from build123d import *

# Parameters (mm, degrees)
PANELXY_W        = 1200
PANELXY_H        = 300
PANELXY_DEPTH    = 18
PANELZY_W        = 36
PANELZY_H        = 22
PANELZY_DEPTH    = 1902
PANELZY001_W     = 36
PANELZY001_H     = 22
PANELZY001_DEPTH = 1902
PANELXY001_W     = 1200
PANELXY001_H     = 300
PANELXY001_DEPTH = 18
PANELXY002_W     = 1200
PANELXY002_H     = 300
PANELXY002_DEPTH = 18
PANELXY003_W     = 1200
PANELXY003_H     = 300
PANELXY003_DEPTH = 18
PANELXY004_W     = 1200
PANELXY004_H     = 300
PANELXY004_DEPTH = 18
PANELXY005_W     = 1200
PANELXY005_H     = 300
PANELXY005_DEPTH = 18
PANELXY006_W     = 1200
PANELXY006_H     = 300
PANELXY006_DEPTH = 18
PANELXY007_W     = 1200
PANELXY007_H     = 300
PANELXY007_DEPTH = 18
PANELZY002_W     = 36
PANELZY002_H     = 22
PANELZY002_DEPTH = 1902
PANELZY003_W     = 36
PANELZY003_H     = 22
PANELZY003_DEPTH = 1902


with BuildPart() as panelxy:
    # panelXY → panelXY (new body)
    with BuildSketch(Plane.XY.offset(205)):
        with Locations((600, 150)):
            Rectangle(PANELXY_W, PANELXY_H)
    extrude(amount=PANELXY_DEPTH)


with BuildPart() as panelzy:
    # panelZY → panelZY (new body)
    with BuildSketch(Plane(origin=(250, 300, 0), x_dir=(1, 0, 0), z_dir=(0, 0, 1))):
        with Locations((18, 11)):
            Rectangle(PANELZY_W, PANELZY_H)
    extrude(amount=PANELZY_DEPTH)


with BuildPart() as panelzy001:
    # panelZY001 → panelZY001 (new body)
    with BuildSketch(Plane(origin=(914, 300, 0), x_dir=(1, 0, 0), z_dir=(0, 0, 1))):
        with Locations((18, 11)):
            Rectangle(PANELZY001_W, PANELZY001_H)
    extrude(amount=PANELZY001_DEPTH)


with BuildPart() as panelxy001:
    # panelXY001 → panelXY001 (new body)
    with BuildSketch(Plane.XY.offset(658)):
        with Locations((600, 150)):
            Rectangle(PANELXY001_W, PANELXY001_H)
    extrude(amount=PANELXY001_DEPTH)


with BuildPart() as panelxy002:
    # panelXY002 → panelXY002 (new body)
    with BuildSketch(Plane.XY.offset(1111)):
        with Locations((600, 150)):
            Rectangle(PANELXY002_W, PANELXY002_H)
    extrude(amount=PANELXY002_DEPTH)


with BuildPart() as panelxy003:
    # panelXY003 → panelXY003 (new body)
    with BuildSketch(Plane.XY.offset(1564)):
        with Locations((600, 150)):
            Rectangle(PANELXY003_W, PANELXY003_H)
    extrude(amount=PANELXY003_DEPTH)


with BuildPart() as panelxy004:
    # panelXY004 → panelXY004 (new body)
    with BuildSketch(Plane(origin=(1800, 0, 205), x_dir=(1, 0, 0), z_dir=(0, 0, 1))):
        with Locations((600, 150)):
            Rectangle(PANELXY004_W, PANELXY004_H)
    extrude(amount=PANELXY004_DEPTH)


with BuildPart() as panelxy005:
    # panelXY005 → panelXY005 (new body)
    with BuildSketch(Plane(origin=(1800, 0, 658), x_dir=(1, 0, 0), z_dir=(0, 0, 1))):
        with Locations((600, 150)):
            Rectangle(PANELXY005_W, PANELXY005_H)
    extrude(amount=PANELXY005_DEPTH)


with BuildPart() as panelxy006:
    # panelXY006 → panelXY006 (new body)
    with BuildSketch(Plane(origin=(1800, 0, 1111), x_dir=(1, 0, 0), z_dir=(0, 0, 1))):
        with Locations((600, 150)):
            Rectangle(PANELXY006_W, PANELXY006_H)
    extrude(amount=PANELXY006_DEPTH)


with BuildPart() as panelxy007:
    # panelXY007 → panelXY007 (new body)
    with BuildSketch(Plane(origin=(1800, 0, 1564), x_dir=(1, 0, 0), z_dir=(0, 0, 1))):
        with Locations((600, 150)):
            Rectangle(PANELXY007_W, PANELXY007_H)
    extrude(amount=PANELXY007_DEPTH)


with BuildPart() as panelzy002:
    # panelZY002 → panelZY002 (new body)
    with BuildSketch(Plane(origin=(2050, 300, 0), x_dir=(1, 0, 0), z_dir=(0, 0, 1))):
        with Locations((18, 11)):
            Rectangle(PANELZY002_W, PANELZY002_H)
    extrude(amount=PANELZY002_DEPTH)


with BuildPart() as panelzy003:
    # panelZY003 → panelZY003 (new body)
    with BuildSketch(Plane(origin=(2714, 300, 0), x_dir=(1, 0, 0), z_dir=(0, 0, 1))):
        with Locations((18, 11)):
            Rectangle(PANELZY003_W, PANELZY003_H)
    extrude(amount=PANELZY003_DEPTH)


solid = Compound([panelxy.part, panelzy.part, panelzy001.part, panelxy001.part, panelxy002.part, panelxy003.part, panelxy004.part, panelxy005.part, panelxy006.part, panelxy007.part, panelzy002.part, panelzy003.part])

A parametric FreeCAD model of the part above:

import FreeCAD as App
import Part
import Sketcher

V = App.Vector
Q = App.Units.Quantity


def add_polygon(sketch, points):
    """Adds a closed chain of lines whose ends are joined by coincident constraints."""
    first, n = sketch.GeometryCount, len(points)
    for a, b in zip(points, points[1:] + points[:1]):
        sketch.addGeometry(Part.LineSegment(App.Vector(*a, 0), App.Vector(*b, 0)), False)
    for i in range(n):
        sketch.addConstraint(Sketcher.Constraint("Coincident", first + i, 2, first + (i + 1) % n, 1))

doc = App.newDocument("Part")
params = doc.addObject("Spreadsheet::Sheet", "Params")
for row, (alias, value) in enumerate([
    ("sketch1_width", "1200 mm"),
    ("sketch1_height", "300 mm"),
    ("pad1_length", "18 mm"),
    ("sketch2_width", "36 mm"),
    ("sketch2_height", "22 mm"),
    ("pad2_length", "1902 mm"),
    ("sketch3_width", "36 mm"),
    ("sketch3_height", "22 mm"),
    ("pad3_length", "1902 mm"),
    ("sketch4_width", "1200 mm"),
    ("sketch4_height", "300 mm"),
    ("pad4_length", "18 mm"),
    ("sketch5_width", "1200 mm"),
    ("sketch5_height", "300 mm"),
    ("pad5_length", "18 mm"),
    ("sketch6_width", "1200 mm"),
    ("sketch6_height", "300 mm"),
    ("pad6_length", "18 mm"),
    ("sketch7_width", "1200 mm"),
    ("sketch7_height", "300 mm"),
    ("pad7_length", "18 mm"),
    ("sketch8_width", "1200 mm"),
    ("sketch8_height", "300 mm"),
    ("pad8_length", "18 mm"),
    ("sketch9_width", "1200 mm"),
    ("sketch9_height", "300 mm"),
    ("pad9_length", "18 mm"),
    ("sketch10_width", "1200 mm"),
    ("sketch10_height", "300 mm"),
    ("pad10_length", "18 mm"),
    ("sketch11_width", "36 mm"),
    ("sketch11_height", "22 mm"),
    ("pad11_length", "1902 mm"),
    ("sketch12_width", "36 mm"),
    ("sketch12_height", "22 mm"),
    ("pad12_length", "1902 mm"),
], start=1):
    params.set(f"A{row}", alias)
    params.set(f"B{row}", "=" + value)
    params.setAlias(f"B{row}", alias)

body = doc.addObject("PartDesign::Body", "Body")

sketch1 = body.newObject("Sketcher::SketchObject", "Sketch")
sketch1.AttachmentSupport = (doc.getObject("XY_Plane"), [""])
sketch1.MapMode = "FlatFace"
sketch1.AttachmentOffset = App.Placement(V(0, 0, 205), App.Rotation())
add_polygon(sketch1, [(0, 300), (0, 0), (1200, 0), (1200, 300)])
sketch1.addConstraint([
    Sketcher.Constraint("Vertical", 0),
    Sketcher.Constraint("Horizontal", 1),
    Sketcher.Constraint("Vertical", 2),
    Sketcher.Constraint("Horizontal", 3),
    Sketcher.Constraint("Coincident", 0, 2, -1, 1),
    Sketcher.Constraint("DistanceX", 1, 1, 1, 2, Q("1200 mm")),
    Sketcher.Constraint("DistanceY", 0, 2, 0, 1, Q("300 mm")),
])
sketch1.setExpression("Constraints[9]", "Params.sketch1_width")
sketch1.setExpression("Constraints[10]", "Params.sketch1_height")
pad1 = body.newObject("PartDesign::Pad", "Pad")
pad1.Profile = sketch1
pad1.setExpression("Length", "Params.pad1_length")
body2 = doc.addObject("PartDesign::Body", "Body001")

sketch2 = body2.newObject("Sketcher::SketchObject", "Sketch001")
sketch2.AttachmentSupport = (doc.getObject("XY_Plane001"), [""])
sketch2.MapMode = "FlatFace"
add_polygon(sketch2, [(250, 322), (250, 300), (286, 300), (286, 322)])
sketch2.addConstraint([
    Sketcher.Constraint("Vertical", 0),
    Sketcher.Constraint("Horizontal", 1),
    Sketcher.Constraint("Vertical", 2),
    Sketcher.Constraint("Horizontal", 3),
    Sketcher.Constraint("DistanceX", 1, 1, 1, 2, Q("36 mm")),
    Sketcher.Constraint("DistanceY", 0, 2, 0, 1, Q("22 mm")),
    Sketcher.Constraint("DistanceX", -1, 1, 0, 2, Q("250 mm")),
    Sketcher.Constraint("DistanceY", -1, 1, 0, 2, Q("300 mm")),
])
sketch2.setExpression("Constraints[8]", "Params.sketch2_width")
sketch2.setExpression("Constraints[9]", "Params.sketch2_height")
pad2 = body2.newObject("PartDesign::Pad", "Pad001")
pad2.Profile = sketch2
pad2.setExpression("Length", "Params.pad2_length")
body3 = doc.addObject("PartDesign::Body", "Body002")

sketch3 = body3.newObject("Sketcher::SketchObject", "Sketch002")
sketch3.AttachmentSupport = (doc.getObject("XY_Plane002"), [""])
sketch3.MapMode = "FlatFace"
add_polygon(sketch3, [(914, 322), (914, 300), (950, 300), (950, 322)])
sketch3.addConstraint([
    Sketcher.Constraint("Vertical", 0),
    Sketcher.Constraint("Horizontal", 1),
    Sketcher.Constraint("Vertical", 2),
    Sketcher.Constraint("Horizontal", 3),
    Sketcher.Constraint("DistanceX", 1, 1, 1, 2, Q("36 mm")),
    Sketcher.Constraint("DistanceY", 0, 2, 0, 1, Q("22 mm")),
    Sketcher.Constraint("DistanceX", -1, 1, 0, 2, Q("914 mm")),
    Sketcher.Constraint("DistanceY", -1, 1, 0, 2, Q("300 mm")),
])
sketch3.setExpression("Constraints[8]", "Params.sketch3_width")
sketch3.setExpression("Constraints[9]", "Params.sketch3_height")
pad3 = body3.newObject("PartDesign::Pad", "Pad002")
pad3.Profile = sketch3
pad3.setExpression("Length", "Params.pad3_length")
body4 = doc.addObject("PartDesign::Body", "Body003")

sketch4 = body4.newObject("Sketcher::SketchObject", "Sketch003")
sketch4.AttachmentSupport = (doc.getObject("XY_Plane003"), [""])
sketch4.MapMode = "FlatFace"
sketch4.AttachmentOffset = App.Placement(V(0, 0, 658), App.Rotation())
add_polygon(sketch4, [(0, 300), (0, 0), (1200, 0), (1200, 300)])
sketch4.addConstraint([
    Sketcher.Constraint("Vertical", 0),
    Sketcher.Constraint("Horizontal", 1),
    Sketcher.Constraint("Vertical", 2),
    Sketcher.Constraint("Horizontal", 3),
    Sketcher.Constraint("Coincident", 0, 2, -1, 1),
    Sketcher.Constraint("DistanceX", 1, 1, 1, 2, Q("1200 mm")),
    Sketcher.Constraint("DistanceY", 0, 2, 0, 1, Q("300 mm")),
])
sketch4.setExpression("Constraints[9]", "Params.sketch4_width")
sketch4.setExpression("Constraints[10]", "Params.sketch4_height")
pad4 = body4.newObject("PartDesign::Pad", "Pad003")
pad4.Profile = sketch4
pad4.setExpression("Length", "Params.pad4_length")
body5 = doc.addObject("PartDesign::Body", "Body004")

sketch5 = body5.newObject("Sketcher::SketchObject", "Sketch004")
sketch5.AttachmentSupport = (doc.getObject("XY_Plane004"), [""])
sketch5.MapMode = "FlatFace"
sketch5.AttachmentOffset = App.Placement(V(0, 0, 1111), App.Rotation())
add_polygon(sketch5, [(0, 300), (0, 0), (1200, 0), (1200, 300)])
sketch5.addConstraint([
    Sketcher.Constraint("Vertical", 0),
    Sketcher.Constraint("Horizontal", 1),
    Sketcher.Constraint("Vertical", 2),
    Sketcher.Constraint("Horizontal", 3),
    Sketcher.Constraint("Coincident", 0, 2, -1, 1),
    Sketcher.Constraint("DistanceX", 1, 1, 1, 2, Q("1200 mm")),
    Sketcher.Constraint("DistanceY", 0, 2, 0, 1, Q("300 mm")),
])
sketch5.setExpression("Constraints[9]", "Params.sketch5_width")
sketch5.setExpression("Constraints[10]", "Params.sketch5_height")
pad5 = body5.newObject("PartDesign::Pad", "Pad004")
pad5.Profile = sketch5
pad5.setExpression("Length", "Params.pad5_length")
body6 = doc.addObject("PartDesign::Body", "Body005")

sketch6 = body6.newObject("Sketcher::SketchObject", "Sketch005")
sketch6.AttachmentSupport = (doc.getObject("XY_Plane005"), [""])
sketch6.MapMode = "FlatFace"
sketch6.AttachmentOffset = App.Placement(V(0, 0, 1564), App.Rotation())
add_polygon(sketch6, [(0, 300), (0, 0), (1200, 0), (1200, 300)])
sketch6.addConstraint([
    Sketcher.Constraint("Vertical", 0),
    Sketcher.Constraint("Horizontal", 1),
    Sketcher.Constraint("Vertical", 2),
    Sketcher.Constraint("Horizontal", 3),
    Sketcher.Constraint("Coincident", 0, 2, -1, 1),
    Sketcher.Constraint("DistanceX", 1, 1, 1, 2, Q("1200 mm")),
    Sketcher.Constraint("DistanceY", 0, 2, 0, 1, Q("300 mm")),
])
sketch6.setExpression("Constraints[9]", "Params.sketch6_width")
sketch6.setExpression("Constraints[10]", "Params.sketch6_height")
pad6 = body6.newObject("PartDesign::Pad", "Pad005")
pad6.Profile = sketch6
pad6.setExpression("Length", "Params.pad6_length")
body7 = doc.addObject("PartDesign::Body", "Body006")

sketch7 = body7.newObject("Sketcher::SketchObject", "Sketch006")
sketch7.AttachmentSupport = (doc.getObject("XY_Plane006"), [""])
sketch7.MapMode = "FlatFace"
sketch7.AttachmentOffset = App.Placement(V(0, 0, 205), App.Rotation())
add_polygon(sketch7, [(1800, 300), (1800, 0), (3000, 0), (3000, 300)])
sketch7.addConstraint([
    Sketcher.Constraint("Vertical", 0),
    Sketcher.Constraint("Horizontal", 1),
    Sketcher.Constraint("Vertical", 2),
    Sketcher.Constraint("Horizontal", 3),
    Sketcher.Constraint("PointOnObject", 0, 2, -1),
    Sketcher.Constraint("DistanceX", 1, 1, 1, 2, Q("1200 mm")),
    Sketcher.Constraint("DistanceY", 0, 2, 0, 1, Q("300 mm")),
    Sketcher.Constraint("DistanceX", -1, 1, 0, 2, Q("1800 mm")),
])
sketch7.setExpression("Constraints[9]", "Params.sketch7_width")
sketch7.setExpression("Constraints[10]", "Params.sketch7_height")
pad7 = body7.newObject("PartDesign::Pad", "Pad006")
pad7.Profile = sketch7
pad7.setExpression("Length", "Params.pad7_length")
body8 = doc.addObject("PartDesign::Body", "Body007")

sketch8 = body8.newObject("Sketcher::SketchObject", "Sketch007")
sketch8.AttachmentSupport = (doc.getObject("XY_Plane007"), [""])
sketch8.MapMode = "FlatFace"
sketch8.AttachmentOffset = App.Placement(V(0, 0, 658), App.Rotation())
add_polygon(sketch8, [(1800, 300), (1800, 0), (3000, 0), (3000, 300)])
sketch8.addConstraint([
    Sketcher.Constraint("Vertical", 0),
    Sketcher.Constraint("Horizontal", 1),
    Sketcher.Constraint("Vertical", 2),
    Sketcher.Constraint("Horizontal", 3),
    Sketcher.Constraint("PointOnObject", 0, 2, -1),
    Sketcher.Constraint("DistanceX", 1, 1, 1, 2, Q("1200 mm")),
    Sketcher.Constraint("DistanceY", 0, 2, 0, 1, Q("300 mm")),
    Sketcher.Constraint("DistanceX", -1, 1, 0, 2, Q("1800 mm")),
])
sketch8.setExpression("Constraints[9]", "Params.sketch8_width")
sketch8.setExpression("Constraints[10]", "Params.sketch8_height")
pad8 = body8.newObject("PartDesign::Pad", "Pad007")
pad8.Profile = sketch8
pad8.setExpression("Length", "Params.pad8_length")
body9 = doc.addObject("PartDesign::Body", "Body008")

sketch9 = body9.newObject("Sketcher::SketchObject", "Sketch008")
sketch9.AttachmentSupport = (doc.getObject("XY_Plane008"), [""])
sketch9.MapMode = "FlatFace"
sketch9.AttachmentOffset = App.Placement(V(0, 0, 1111), App.Rotation())
add_polygon(sketch9, [(1800, 300), (1800, 0), (3000, 0), (3000, 300)])
sketch9.addConstraint([
    Sketcher.Constraint("Vertical", 0),
    Sketcher.Constraint("Horizontal", 1),
    Sketcher.Constraint("Vertical", 2),
    Sketcher.Constraint("Horizontal", 3),
    Sketcher.Constraint("PointOnObject", 0, 2, -1),
    Sketcher.Constraint("DistanceX", 1, 1, 1, 2, Q("1200 mm")),
    Sketcher.Constraint("DistanceY", 0, 2, 0, 1, Q("300 mm")),
    Sketcher.Constraint("DistanceX", -1, 1, 0, 2, Q("1800 mm")),
])
sketch9.setExpression("Constraints[9]", "Params.sketch9_width")
sketch9.setExpression("Constraints[10]", "Params.sketch9_height")
pad9 = body9.newObject("PartDesign::Pad", "Pad008")
pad9.Profile = sketch9
pad9.setExpression("Length", "Params.pad9_length")
body10 = doc.addObject("PartDesign::Body", "Body009")

sketch10 = body10.newObject("Sketcher::SketchObject", "Sketch009")
sketch10.AttachmentSupport = (doc.getObject("XY_Plane009"), [""])
sketch10.MapMode = "FlatFace"
sketch10.AttachmentOffset = App.Placement(V(0, 0, 1564), App.Rotation())
add_polygon(sketch10, [(1800, 300), (1800, 0), (3000, 0), (3000, 300)])
sketch10.addConstraint([
    Sketcher.Constraint("Vertical", 0),
    Sketcher.Constraint("Horizontal", 1),
    Sketcher.Constraint("Vertical", 2),
    Sketcher.Constraint("Horizontal", 3),
    Sketcher.Constraint("PointOnObject", 0, 2, -1),
    Sketcher.Constraint("DistanceX", 1, 1, 1, 2, Q("1200 mm")),
    Sketcher.Constraint("DistanceY", 0, 2, 0, 1, Q("300 mm")),
    Sketcher.Constraint("DistanceX", -1, 1, 0, 2, Q("1800 mm")),
])
sketch10.setExpression("Constraints[9]", "Params.sketch10_width")
sketch10.setExpression("Constraints[10]", "Params.sketch10_height")
pad10 = body10.newObject("PartDesign::Pad", "Pad009")
pad10.Profile = sketch10
pad10.setExpression("Length", "Params.pad10_length")
body11 = doc.addObject("PartDesign::Body", "Body010")

sketch11 = body11.newObject("Sketcher::SketchObject", "Sketch010")
sketch11.AttachmentSupport = (doc.getObject("XY_Plane010"), [""])
sketch11.MapMode = "FlatFace"
add_polygon(sketch11, [(2050, 322), (2050, 300), (2086, 300), (2086, 322)])
sketch11.addConstraint([
    Sketcher.Constraint("Vertical", 0),
    Sketcher.Constraint("Horizontal", 1),
    Sketcher.Constraint("Vertical", 2),
    Sketcher.Constraint("Horizontal", 3),
    Sketcher.Constraint("DistanceX", 1, 1, 1, 2, Q("36 mm")),
    Sketcher.Constraint("DistanceY", 0, 2, 0, 1, Q("22 mm")),
    Sketcher.Constraint("DistanceX", -1, 1, 0, 2, Q("2050 mm")),
    Sketcher.Constraint("DistanceY", -1, 1, 0, 2, Q("300 mm")),
])
sketch11.setExpression("Constraints[8]", "Params.sketch11_width")
sketch11.setExpression("Constraints[9]", "Params.sketch11_height")
pad11 = body11.newObject("PartDesign::Pad", "Pad010")
pad11.Profile = sketch11
pad11.setExpression("Length", "Params.pad11_length")
body12 = doc.addObject("PartDesign::Body", "Body011")

sketch12 = body12.newObject("Sketcher::SketchObject", "Sketch011")
sketch12.AttachmentSupport = (doc.getObject("XY_Plane011"), [""])
sketch12.MapMode = "FlatFace"
add_polygon(sketch12, [(2714, 322), (2714, 300), (2750, 300), (2750, 322)])
sketch12.addConstraint([
    Sketcher.Constraint("Vertical", 0),
    Sketcher.Constraint("Horizontal", 1),
    Sketcher.Constraint("Vertical", 2),
    Sketcher.Constraint("Horizontal", 3),
    Sketcher.Constraint("DistanceX", 1, 1, 1, 2, Q("36 mm")),
    Sketcher.Constraint("DistanceY", 0, 2, 0, 1, Q("22 mm")),
    Sketcher.Constraint("DistanceX", -1, 1, 0, 2, Q("2714 mm")),
    Sketcher.Constraint("DistanceY", -1, 1, 0, 2, Q("300 mm")),
])
sketch12.setExpression("Constraints[8]", "Params.sketch12_width")
sketch12.setExpression("Constraints[9]", "Params.sketch12_height")
pad12 = body12.newObject("PartDesign::Pad", "Pad011")
pad12.Profile = sketch12
pad12.setExpression("Length", "Params.pad12_length")

doc.recompute()
